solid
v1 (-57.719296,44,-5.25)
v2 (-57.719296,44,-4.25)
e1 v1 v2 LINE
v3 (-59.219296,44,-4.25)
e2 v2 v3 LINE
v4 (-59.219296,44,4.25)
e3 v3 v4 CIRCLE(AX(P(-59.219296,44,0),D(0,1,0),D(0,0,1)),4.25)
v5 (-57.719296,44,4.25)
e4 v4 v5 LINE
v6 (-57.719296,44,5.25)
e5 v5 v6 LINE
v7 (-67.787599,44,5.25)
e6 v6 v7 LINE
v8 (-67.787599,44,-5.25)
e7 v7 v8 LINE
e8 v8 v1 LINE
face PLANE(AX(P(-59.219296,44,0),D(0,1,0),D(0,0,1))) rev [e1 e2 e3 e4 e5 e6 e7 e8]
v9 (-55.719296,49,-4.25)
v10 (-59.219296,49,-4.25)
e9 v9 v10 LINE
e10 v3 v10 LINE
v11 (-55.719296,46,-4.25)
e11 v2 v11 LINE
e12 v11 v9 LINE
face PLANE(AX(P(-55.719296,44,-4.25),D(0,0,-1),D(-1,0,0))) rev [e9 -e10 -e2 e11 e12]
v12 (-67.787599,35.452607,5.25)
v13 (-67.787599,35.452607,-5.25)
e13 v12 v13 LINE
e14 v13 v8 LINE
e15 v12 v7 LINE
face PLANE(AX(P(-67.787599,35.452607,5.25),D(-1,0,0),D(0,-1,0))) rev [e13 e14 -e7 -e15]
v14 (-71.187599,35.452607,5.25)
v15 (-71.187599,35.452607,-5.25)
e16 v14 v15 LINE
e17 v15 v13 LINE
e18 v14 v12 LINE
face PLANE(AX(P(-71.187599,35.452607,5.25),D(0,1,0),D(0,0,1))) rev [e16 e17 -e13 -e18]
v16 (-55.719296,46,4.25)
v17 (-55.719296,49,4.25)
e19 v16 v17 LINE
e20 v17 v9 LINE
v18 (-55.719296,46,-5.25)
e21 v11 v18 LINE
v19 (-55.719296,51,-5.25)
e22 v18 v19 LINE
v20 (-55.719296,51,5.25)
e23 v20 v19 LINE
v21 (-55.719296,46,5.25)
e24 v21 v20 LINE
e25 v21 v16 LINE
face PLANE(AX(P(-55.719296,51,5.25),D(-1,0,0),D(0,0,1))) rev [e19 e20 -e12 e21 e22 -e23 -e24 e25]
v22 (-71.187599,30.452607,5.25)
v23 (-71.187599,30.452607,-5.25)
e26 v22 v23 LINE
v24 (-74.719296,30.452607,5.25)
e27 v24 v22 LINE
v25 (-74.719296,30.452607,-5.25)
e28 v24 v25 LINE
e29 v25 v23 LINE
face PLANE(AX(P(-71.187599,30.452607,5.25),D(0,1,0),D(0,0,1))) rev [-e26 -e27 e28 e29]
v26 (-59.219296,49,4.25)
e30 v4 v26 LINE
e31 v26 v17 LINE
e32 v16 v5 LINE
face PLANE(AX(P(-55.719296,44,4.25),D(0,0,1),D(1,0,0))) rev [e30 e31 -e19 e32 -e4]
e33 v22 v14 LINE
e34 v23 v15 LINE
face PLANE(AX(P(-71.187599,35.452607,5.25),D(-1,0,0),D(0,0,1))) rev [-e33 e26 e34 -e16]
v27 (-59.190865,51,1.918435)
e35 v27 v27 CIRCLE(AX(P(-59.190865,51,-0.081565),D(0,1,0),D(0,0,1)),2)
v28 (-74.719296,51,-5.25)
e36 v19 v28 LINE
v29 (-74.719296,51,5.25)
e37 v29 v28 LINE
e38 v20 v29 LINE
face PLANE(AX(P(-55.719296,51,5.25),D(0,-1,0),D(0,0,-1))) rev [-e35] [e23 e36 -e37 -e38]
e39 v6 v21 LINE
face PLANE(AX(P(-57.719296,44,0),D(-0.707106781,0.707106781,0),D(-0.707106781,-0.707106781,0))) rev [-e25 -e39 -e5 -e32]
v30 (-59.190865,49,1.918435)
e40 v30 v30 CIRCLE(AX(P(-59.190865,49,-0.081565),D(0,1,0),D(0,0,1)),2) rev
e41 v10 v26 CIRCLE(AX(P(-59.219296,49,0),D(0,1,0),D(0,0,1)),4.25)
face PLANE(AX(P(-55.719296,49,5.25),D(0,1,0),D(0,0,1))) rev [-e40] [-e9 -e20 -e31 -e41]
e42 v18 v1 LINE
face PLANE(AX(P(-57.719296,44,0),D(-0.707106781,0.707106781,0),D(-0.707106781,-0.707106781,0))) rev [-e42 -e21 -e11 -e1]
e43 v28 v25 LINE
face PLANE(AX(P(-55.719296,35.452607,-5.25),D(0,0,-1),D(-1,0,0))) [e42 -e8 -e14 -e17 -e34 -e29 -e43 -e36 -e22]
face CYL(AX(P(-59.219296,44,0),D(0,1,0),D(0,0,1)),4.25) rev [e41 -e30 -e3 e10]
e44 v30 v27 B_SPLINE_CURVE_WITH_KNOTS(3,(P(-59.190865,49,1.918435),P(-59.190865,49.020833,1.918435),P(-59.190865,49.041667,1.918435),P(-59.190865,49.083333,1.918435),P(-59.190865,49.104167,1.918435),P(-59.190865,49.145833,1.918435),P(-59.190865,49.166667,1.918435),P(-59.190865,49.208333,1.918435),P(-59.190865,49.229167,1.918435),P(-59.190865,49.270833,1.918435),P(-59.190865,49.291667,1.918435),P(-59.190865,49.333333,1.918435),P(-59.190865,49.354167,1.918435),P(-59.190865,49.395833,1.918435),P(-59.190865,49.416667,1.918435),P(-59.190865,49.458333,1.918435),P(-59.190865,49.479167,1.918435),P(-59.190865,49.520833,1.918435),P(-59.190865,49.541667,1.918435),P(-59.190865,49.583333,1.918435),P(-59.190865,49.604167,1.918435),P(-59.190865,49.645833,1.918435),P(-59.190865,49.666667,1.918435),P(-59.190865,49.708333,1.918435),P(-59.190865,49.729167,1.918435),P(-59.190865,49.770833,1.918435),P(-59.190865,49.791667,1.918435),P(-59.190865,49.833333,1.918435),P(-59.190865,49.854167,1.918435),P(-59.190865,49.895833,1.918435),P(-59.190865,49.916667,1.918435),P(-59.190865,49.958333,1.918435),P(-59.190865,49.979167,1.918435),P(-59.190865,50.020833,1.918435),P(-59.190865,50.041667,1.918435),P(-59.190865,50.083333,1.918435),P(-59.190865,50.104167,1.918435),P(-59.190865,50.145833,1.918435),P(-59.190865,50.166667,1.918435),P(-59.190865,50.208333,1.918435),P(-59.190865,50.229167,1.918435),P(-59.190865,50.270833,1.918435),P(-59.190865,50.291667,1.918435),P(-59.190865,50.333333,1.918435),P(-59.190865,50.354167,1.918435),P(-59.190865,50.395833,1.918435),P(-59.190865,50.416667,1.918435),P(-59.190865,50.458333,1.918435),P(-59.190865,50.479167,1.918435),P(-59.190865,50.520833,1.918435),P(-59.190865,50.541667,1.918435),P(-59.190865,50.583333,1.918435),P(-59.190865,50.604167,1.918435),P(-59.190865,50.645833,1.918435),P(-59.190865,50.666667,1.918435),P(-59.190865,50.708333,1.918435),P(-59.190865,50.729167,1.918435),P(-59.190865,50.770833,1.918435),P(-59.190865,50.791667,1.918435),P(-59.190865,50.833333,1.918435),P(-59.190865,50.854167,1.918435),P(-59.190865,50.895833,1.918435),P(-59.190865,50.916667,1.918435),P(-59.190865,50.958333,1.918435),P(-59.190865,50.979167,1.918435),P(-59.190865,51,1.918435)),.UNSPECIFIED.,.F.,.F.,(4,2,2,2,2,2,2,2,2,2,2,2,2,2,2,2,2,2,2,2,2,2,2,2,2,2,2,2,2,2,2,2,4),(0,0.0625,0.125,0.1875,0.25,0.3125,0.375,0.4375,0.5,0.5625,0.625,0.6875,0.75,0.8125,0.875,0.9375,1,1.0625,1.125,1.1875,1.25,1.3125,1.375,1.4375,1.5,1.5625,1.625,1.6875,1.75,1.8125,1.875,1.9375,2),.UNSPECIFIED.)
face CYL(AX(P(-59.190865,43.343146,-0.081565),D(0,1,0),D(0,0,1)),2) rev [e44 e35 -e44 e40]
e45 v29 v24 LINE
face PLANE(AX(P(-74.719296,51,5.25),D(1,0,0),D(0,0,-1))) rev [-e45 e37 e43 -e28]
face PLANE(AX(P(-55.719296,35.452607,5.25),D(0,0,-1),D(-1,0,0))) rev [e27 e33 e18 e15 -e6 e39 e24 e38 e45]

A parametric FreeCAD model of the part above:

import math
import FreeCAD as App
import Part
import Sketcher

V = App.Vector


def edges_at(feature, points):
    """Names of the edges that pass closest to the given points."""
    edges = feature.Shape.Edges
    near = lambda p: min(range(len(edges)), key=lambda i: edges[i].distToShape(Part.Vertex(*p))[0])
    return sorted({f"Edge{near(p) + 1}" for p in points})

doc = App.newDocument("Part")
body = doc.addObject("PartDesign::Body", "Body")

# Sketch on XY plane
sketch1 = doc.addObject("Sketcher::SketchObject", "Sketch")
body.addObject(sketch1)
sketch1.AttachmentSupport = (doc.XY_Plane, [""])
sketch1.MapMode = "FlatFace"
sketch1.addGeometry([
    Part.LineSegment(V(-67.8, 49, 0), V(-55.7, 49, 0)),  # 0
    Part.LineSegment(V(-55.7, 49, 0), V(-55.7, 51, 0)),  # 1
    Part.LineSegment(V(-55.7, 51, 0), V(-74.7, 51, 0)),  # 2
    Part.LineSegment(V(-74.7, 51, 0), V(-74.7, 30.5, 0)),  # 3
    Part.LineSegment(V(-74.7, 30.5, 0), V(-71.2, 30.5, 0)),  # 4
    Part.LineSegment(V(-71.2, 30.5, 0), V(-71.2, 35.5, 0)),  # 5
    Part.LineSegment(V(-71.2, 35.5, 0), V(-67.8, 35.5, 0)),  # 6
    Part.LineSegment(V(-67.8, 35.5, 0), V(-67.8, 49, 0)),  # 7
], False)
sketch1.addConstraint([
    Sketcher.Constraint("Coincident", 0, 2, 1, 1),
    Sketcher.Constraint("Coincident", 1, 2, 2, 1),
    Sketcher.Constraint("Coincident", 2, 2, 3, 1),
    Sketcher.Constraint("Coincident", 3, 2, 4, 1),
    Sketcher.Constraint("Coincident", 4, 2, 5, 1),
    Sketcher.Constraint("Coincident", 5, 2, 6, 1),
    Sketcher.Constraint("Coincident", 6, 2, 7, 1),
    Sketcher.Constraint("Coincident", 7, 2, 0, 1),
    Sketcher.Constraint("Horizontal", 0),
    Sketcher.Constraint("Vertical", 1),
    Sketcher.Constraint("Horizontal", 2),
    Sketcher.Constraint("Vertical", 3),
    Sketcher.Constraint("Horizontal", 4),
    Sketcher.Constraint("Vertical", 5),
    Sketcher.Constraint("Horizontal", 6),
    Sketcher.Constraint("Vertical", 7),
    Sketcher.Constraint("DistanceX", 2, 2, 2, 1, 19.0),
    Sketcher.Constraint("DistanceY", 1, 1, 1, 2, 2.0),
    Sketcher.Constraint("DistanceY", 5, 1, 5, 2, 5.0),
    Sketcher.Constraint("DistanceX", 6, 1, 6, 2, 3.4),
    Sketcher.Constraint("DistanceY", -1, 1, 0, 2, 49.0),
    Sketcher.Constraint("DistanceX", 4, 2, -1, 1, 71.187599),
    Sketcher.Constraint("DistanceX", 0, 1, 0, 2, 12.068302),
    Sketcher.Constraint("DistanceY", 3, 2, 3, 1, 20.547393),
])
pad1 = doc.addObject("PartDesign::Pad", "Pad")
body.addObject(pad1)
pad1.Profile = sketch1
pad1.Length = 10.5
pad1.Midplane = True

# Sketch on XZ plane
sketch2 = doc.addObject("Sketcher::SketchObject", "Sketch001")
body.addObject(sketch2)
sketch2.AttachmentSupport = (doc.XZ_Plane, [""])
sketch2.MapMode = "FlatFace"
sketch2.AttachmentOffset = App.Placement(V(0, 0, -49), App.Rotation())
sketch2.addGeometry([
    Part.LineSegment(V(-55.7, 5.2, 0), V(-69.8, 5.2, 0)),  # 0
    Part.LineSegment(V(-69.8, 5.2, 0), V(-69.8, -5.2, 0)),  # 1
    Part.LineSegment(V(-69.8, -5.2, 0), V(-55.7, -5.2, 0)),  # 2
    Part.LineSegment(V(-55.7, -5.2, 0), V(-55.7, -4.2, 0)),  # 3
    Part.LineSegment(V(-55.7, -4.2, 0), V(-59.2, -4.2, 0)),  # 4
    Part.ArcOfCircle(Part.Circle(V(-59.2, 0, 0), V(0, 0, 1), 4.2), math.radians(90), math.radians(270)),  # 5
    Part.LineSegment(V(-59.2, 4.2, 0), V(-55.7, 4.2, 0)),  # 6
    Part.LineSegment(V(-55.7, 4.2, 0), V(-55.7, 5.2, 0)),  # 7
], False)
sketch2.addConstraint([
    Sketcher.Constraint("Coincident", 0, 2, 1, 1),
    Sketcher.Constraint("Coincident", 1, 2, 2, 1),
    Sketcher.Constraint("Coincident", 2, 2, 3, 1),
    Sketcher.Constraint("Coincident", 3, 2, 4, 1),
    Sketcher.Constraint("Tangent", 4, 2, 5, 2),
    Sketcher.Constraint("Tangent", 5, 1, 6, 1),
    Sketcher.Constraint("Coincident", 6, 2, 7, 1),
    Sketcher.Constraint("Coincident", 7, 2, 0, 1),
    Sketcher.Constraint("Horizontal", 0),
    Sketcher.Constraint("Vertical", 1),
    Sketcher.Constraint("Horizontal", 2),
    Sketcher.Constraint("Vertical", 3),
    Sketcher.Constraint("Horizontal", 4),
    Sketcher.Constraint("Horizontal", 6),
    Sketcher.Constraint("Vertical", 7),
    Sketcher.Constraint("Symmetric", 3, 2, 6, 2, -1),
    Sketcher.Constraint("Equal", 3, 7),
    Sketcher.Constraint("DistanceY", 3, 1, 3, 2, 1.0),
    Sketcher.Constraint("Radius", 5, 4.25),
    Sketcher.Constraint("DistanceX", 4, 2, 4, 1, 3.5),
    Sketcher.Constraint("DistanceX", 0, 2, 0, 1, 14.083024),
    Sketcher.Constraint("DistanceX", 0, 2, -1, 1, 69.80232),
])
pad2 = doc.addObject("PartDesign::Pad", "Pad001")
body.addObject(pad2)
pad2.Profile = sketch2
pad2.Length = 5

# Sketch on XZ plane
sketch3 = doc.addObject("Sketcher::SketchObject", "Sketch002")
body.addObject(sketch3)
sketch3.AttachmentSupport = (doc.XZ_Plane, [""])
sketch3.MapMode = "FlatFace"
sketch3.AttachmentOffset = App.Placement(V(0, 0, -51), App.Rotation())
sketch3.addGeometry(Part.Circle(V(-59.2, -0.1, 0), V(0, 0, 1), 2), False)
sketch3.addConstraint([
    Sketcher.Constraint("Diameter", 0, 4.0),
    Sketcher.Constraint("DistanceX", 0, 3, -1, 1, 59.190865),
    Sketcher.Constraint("DistanceY", 0, 3, -1, 1, 0.081565),
])
pocket1 = doc.addObject("PartDesign::Pocket", "Pocket")
body.addObject(pocket1)
pocket1.Profile = sketch3
pocket1.Length = 2
pocket1.Reversed = True
doc.recompute()

chamfer = doc.addObject("PartDesign::Chamfer", "Chamfer")
body.addObject(chamfer)
chamfer.Base = (pocket1, edges_at(pocket1, [(-55.719, 44, -4.75), (-55.719, 44, 4.75)]))
chamfer.Size = 2

doc.recompute()
